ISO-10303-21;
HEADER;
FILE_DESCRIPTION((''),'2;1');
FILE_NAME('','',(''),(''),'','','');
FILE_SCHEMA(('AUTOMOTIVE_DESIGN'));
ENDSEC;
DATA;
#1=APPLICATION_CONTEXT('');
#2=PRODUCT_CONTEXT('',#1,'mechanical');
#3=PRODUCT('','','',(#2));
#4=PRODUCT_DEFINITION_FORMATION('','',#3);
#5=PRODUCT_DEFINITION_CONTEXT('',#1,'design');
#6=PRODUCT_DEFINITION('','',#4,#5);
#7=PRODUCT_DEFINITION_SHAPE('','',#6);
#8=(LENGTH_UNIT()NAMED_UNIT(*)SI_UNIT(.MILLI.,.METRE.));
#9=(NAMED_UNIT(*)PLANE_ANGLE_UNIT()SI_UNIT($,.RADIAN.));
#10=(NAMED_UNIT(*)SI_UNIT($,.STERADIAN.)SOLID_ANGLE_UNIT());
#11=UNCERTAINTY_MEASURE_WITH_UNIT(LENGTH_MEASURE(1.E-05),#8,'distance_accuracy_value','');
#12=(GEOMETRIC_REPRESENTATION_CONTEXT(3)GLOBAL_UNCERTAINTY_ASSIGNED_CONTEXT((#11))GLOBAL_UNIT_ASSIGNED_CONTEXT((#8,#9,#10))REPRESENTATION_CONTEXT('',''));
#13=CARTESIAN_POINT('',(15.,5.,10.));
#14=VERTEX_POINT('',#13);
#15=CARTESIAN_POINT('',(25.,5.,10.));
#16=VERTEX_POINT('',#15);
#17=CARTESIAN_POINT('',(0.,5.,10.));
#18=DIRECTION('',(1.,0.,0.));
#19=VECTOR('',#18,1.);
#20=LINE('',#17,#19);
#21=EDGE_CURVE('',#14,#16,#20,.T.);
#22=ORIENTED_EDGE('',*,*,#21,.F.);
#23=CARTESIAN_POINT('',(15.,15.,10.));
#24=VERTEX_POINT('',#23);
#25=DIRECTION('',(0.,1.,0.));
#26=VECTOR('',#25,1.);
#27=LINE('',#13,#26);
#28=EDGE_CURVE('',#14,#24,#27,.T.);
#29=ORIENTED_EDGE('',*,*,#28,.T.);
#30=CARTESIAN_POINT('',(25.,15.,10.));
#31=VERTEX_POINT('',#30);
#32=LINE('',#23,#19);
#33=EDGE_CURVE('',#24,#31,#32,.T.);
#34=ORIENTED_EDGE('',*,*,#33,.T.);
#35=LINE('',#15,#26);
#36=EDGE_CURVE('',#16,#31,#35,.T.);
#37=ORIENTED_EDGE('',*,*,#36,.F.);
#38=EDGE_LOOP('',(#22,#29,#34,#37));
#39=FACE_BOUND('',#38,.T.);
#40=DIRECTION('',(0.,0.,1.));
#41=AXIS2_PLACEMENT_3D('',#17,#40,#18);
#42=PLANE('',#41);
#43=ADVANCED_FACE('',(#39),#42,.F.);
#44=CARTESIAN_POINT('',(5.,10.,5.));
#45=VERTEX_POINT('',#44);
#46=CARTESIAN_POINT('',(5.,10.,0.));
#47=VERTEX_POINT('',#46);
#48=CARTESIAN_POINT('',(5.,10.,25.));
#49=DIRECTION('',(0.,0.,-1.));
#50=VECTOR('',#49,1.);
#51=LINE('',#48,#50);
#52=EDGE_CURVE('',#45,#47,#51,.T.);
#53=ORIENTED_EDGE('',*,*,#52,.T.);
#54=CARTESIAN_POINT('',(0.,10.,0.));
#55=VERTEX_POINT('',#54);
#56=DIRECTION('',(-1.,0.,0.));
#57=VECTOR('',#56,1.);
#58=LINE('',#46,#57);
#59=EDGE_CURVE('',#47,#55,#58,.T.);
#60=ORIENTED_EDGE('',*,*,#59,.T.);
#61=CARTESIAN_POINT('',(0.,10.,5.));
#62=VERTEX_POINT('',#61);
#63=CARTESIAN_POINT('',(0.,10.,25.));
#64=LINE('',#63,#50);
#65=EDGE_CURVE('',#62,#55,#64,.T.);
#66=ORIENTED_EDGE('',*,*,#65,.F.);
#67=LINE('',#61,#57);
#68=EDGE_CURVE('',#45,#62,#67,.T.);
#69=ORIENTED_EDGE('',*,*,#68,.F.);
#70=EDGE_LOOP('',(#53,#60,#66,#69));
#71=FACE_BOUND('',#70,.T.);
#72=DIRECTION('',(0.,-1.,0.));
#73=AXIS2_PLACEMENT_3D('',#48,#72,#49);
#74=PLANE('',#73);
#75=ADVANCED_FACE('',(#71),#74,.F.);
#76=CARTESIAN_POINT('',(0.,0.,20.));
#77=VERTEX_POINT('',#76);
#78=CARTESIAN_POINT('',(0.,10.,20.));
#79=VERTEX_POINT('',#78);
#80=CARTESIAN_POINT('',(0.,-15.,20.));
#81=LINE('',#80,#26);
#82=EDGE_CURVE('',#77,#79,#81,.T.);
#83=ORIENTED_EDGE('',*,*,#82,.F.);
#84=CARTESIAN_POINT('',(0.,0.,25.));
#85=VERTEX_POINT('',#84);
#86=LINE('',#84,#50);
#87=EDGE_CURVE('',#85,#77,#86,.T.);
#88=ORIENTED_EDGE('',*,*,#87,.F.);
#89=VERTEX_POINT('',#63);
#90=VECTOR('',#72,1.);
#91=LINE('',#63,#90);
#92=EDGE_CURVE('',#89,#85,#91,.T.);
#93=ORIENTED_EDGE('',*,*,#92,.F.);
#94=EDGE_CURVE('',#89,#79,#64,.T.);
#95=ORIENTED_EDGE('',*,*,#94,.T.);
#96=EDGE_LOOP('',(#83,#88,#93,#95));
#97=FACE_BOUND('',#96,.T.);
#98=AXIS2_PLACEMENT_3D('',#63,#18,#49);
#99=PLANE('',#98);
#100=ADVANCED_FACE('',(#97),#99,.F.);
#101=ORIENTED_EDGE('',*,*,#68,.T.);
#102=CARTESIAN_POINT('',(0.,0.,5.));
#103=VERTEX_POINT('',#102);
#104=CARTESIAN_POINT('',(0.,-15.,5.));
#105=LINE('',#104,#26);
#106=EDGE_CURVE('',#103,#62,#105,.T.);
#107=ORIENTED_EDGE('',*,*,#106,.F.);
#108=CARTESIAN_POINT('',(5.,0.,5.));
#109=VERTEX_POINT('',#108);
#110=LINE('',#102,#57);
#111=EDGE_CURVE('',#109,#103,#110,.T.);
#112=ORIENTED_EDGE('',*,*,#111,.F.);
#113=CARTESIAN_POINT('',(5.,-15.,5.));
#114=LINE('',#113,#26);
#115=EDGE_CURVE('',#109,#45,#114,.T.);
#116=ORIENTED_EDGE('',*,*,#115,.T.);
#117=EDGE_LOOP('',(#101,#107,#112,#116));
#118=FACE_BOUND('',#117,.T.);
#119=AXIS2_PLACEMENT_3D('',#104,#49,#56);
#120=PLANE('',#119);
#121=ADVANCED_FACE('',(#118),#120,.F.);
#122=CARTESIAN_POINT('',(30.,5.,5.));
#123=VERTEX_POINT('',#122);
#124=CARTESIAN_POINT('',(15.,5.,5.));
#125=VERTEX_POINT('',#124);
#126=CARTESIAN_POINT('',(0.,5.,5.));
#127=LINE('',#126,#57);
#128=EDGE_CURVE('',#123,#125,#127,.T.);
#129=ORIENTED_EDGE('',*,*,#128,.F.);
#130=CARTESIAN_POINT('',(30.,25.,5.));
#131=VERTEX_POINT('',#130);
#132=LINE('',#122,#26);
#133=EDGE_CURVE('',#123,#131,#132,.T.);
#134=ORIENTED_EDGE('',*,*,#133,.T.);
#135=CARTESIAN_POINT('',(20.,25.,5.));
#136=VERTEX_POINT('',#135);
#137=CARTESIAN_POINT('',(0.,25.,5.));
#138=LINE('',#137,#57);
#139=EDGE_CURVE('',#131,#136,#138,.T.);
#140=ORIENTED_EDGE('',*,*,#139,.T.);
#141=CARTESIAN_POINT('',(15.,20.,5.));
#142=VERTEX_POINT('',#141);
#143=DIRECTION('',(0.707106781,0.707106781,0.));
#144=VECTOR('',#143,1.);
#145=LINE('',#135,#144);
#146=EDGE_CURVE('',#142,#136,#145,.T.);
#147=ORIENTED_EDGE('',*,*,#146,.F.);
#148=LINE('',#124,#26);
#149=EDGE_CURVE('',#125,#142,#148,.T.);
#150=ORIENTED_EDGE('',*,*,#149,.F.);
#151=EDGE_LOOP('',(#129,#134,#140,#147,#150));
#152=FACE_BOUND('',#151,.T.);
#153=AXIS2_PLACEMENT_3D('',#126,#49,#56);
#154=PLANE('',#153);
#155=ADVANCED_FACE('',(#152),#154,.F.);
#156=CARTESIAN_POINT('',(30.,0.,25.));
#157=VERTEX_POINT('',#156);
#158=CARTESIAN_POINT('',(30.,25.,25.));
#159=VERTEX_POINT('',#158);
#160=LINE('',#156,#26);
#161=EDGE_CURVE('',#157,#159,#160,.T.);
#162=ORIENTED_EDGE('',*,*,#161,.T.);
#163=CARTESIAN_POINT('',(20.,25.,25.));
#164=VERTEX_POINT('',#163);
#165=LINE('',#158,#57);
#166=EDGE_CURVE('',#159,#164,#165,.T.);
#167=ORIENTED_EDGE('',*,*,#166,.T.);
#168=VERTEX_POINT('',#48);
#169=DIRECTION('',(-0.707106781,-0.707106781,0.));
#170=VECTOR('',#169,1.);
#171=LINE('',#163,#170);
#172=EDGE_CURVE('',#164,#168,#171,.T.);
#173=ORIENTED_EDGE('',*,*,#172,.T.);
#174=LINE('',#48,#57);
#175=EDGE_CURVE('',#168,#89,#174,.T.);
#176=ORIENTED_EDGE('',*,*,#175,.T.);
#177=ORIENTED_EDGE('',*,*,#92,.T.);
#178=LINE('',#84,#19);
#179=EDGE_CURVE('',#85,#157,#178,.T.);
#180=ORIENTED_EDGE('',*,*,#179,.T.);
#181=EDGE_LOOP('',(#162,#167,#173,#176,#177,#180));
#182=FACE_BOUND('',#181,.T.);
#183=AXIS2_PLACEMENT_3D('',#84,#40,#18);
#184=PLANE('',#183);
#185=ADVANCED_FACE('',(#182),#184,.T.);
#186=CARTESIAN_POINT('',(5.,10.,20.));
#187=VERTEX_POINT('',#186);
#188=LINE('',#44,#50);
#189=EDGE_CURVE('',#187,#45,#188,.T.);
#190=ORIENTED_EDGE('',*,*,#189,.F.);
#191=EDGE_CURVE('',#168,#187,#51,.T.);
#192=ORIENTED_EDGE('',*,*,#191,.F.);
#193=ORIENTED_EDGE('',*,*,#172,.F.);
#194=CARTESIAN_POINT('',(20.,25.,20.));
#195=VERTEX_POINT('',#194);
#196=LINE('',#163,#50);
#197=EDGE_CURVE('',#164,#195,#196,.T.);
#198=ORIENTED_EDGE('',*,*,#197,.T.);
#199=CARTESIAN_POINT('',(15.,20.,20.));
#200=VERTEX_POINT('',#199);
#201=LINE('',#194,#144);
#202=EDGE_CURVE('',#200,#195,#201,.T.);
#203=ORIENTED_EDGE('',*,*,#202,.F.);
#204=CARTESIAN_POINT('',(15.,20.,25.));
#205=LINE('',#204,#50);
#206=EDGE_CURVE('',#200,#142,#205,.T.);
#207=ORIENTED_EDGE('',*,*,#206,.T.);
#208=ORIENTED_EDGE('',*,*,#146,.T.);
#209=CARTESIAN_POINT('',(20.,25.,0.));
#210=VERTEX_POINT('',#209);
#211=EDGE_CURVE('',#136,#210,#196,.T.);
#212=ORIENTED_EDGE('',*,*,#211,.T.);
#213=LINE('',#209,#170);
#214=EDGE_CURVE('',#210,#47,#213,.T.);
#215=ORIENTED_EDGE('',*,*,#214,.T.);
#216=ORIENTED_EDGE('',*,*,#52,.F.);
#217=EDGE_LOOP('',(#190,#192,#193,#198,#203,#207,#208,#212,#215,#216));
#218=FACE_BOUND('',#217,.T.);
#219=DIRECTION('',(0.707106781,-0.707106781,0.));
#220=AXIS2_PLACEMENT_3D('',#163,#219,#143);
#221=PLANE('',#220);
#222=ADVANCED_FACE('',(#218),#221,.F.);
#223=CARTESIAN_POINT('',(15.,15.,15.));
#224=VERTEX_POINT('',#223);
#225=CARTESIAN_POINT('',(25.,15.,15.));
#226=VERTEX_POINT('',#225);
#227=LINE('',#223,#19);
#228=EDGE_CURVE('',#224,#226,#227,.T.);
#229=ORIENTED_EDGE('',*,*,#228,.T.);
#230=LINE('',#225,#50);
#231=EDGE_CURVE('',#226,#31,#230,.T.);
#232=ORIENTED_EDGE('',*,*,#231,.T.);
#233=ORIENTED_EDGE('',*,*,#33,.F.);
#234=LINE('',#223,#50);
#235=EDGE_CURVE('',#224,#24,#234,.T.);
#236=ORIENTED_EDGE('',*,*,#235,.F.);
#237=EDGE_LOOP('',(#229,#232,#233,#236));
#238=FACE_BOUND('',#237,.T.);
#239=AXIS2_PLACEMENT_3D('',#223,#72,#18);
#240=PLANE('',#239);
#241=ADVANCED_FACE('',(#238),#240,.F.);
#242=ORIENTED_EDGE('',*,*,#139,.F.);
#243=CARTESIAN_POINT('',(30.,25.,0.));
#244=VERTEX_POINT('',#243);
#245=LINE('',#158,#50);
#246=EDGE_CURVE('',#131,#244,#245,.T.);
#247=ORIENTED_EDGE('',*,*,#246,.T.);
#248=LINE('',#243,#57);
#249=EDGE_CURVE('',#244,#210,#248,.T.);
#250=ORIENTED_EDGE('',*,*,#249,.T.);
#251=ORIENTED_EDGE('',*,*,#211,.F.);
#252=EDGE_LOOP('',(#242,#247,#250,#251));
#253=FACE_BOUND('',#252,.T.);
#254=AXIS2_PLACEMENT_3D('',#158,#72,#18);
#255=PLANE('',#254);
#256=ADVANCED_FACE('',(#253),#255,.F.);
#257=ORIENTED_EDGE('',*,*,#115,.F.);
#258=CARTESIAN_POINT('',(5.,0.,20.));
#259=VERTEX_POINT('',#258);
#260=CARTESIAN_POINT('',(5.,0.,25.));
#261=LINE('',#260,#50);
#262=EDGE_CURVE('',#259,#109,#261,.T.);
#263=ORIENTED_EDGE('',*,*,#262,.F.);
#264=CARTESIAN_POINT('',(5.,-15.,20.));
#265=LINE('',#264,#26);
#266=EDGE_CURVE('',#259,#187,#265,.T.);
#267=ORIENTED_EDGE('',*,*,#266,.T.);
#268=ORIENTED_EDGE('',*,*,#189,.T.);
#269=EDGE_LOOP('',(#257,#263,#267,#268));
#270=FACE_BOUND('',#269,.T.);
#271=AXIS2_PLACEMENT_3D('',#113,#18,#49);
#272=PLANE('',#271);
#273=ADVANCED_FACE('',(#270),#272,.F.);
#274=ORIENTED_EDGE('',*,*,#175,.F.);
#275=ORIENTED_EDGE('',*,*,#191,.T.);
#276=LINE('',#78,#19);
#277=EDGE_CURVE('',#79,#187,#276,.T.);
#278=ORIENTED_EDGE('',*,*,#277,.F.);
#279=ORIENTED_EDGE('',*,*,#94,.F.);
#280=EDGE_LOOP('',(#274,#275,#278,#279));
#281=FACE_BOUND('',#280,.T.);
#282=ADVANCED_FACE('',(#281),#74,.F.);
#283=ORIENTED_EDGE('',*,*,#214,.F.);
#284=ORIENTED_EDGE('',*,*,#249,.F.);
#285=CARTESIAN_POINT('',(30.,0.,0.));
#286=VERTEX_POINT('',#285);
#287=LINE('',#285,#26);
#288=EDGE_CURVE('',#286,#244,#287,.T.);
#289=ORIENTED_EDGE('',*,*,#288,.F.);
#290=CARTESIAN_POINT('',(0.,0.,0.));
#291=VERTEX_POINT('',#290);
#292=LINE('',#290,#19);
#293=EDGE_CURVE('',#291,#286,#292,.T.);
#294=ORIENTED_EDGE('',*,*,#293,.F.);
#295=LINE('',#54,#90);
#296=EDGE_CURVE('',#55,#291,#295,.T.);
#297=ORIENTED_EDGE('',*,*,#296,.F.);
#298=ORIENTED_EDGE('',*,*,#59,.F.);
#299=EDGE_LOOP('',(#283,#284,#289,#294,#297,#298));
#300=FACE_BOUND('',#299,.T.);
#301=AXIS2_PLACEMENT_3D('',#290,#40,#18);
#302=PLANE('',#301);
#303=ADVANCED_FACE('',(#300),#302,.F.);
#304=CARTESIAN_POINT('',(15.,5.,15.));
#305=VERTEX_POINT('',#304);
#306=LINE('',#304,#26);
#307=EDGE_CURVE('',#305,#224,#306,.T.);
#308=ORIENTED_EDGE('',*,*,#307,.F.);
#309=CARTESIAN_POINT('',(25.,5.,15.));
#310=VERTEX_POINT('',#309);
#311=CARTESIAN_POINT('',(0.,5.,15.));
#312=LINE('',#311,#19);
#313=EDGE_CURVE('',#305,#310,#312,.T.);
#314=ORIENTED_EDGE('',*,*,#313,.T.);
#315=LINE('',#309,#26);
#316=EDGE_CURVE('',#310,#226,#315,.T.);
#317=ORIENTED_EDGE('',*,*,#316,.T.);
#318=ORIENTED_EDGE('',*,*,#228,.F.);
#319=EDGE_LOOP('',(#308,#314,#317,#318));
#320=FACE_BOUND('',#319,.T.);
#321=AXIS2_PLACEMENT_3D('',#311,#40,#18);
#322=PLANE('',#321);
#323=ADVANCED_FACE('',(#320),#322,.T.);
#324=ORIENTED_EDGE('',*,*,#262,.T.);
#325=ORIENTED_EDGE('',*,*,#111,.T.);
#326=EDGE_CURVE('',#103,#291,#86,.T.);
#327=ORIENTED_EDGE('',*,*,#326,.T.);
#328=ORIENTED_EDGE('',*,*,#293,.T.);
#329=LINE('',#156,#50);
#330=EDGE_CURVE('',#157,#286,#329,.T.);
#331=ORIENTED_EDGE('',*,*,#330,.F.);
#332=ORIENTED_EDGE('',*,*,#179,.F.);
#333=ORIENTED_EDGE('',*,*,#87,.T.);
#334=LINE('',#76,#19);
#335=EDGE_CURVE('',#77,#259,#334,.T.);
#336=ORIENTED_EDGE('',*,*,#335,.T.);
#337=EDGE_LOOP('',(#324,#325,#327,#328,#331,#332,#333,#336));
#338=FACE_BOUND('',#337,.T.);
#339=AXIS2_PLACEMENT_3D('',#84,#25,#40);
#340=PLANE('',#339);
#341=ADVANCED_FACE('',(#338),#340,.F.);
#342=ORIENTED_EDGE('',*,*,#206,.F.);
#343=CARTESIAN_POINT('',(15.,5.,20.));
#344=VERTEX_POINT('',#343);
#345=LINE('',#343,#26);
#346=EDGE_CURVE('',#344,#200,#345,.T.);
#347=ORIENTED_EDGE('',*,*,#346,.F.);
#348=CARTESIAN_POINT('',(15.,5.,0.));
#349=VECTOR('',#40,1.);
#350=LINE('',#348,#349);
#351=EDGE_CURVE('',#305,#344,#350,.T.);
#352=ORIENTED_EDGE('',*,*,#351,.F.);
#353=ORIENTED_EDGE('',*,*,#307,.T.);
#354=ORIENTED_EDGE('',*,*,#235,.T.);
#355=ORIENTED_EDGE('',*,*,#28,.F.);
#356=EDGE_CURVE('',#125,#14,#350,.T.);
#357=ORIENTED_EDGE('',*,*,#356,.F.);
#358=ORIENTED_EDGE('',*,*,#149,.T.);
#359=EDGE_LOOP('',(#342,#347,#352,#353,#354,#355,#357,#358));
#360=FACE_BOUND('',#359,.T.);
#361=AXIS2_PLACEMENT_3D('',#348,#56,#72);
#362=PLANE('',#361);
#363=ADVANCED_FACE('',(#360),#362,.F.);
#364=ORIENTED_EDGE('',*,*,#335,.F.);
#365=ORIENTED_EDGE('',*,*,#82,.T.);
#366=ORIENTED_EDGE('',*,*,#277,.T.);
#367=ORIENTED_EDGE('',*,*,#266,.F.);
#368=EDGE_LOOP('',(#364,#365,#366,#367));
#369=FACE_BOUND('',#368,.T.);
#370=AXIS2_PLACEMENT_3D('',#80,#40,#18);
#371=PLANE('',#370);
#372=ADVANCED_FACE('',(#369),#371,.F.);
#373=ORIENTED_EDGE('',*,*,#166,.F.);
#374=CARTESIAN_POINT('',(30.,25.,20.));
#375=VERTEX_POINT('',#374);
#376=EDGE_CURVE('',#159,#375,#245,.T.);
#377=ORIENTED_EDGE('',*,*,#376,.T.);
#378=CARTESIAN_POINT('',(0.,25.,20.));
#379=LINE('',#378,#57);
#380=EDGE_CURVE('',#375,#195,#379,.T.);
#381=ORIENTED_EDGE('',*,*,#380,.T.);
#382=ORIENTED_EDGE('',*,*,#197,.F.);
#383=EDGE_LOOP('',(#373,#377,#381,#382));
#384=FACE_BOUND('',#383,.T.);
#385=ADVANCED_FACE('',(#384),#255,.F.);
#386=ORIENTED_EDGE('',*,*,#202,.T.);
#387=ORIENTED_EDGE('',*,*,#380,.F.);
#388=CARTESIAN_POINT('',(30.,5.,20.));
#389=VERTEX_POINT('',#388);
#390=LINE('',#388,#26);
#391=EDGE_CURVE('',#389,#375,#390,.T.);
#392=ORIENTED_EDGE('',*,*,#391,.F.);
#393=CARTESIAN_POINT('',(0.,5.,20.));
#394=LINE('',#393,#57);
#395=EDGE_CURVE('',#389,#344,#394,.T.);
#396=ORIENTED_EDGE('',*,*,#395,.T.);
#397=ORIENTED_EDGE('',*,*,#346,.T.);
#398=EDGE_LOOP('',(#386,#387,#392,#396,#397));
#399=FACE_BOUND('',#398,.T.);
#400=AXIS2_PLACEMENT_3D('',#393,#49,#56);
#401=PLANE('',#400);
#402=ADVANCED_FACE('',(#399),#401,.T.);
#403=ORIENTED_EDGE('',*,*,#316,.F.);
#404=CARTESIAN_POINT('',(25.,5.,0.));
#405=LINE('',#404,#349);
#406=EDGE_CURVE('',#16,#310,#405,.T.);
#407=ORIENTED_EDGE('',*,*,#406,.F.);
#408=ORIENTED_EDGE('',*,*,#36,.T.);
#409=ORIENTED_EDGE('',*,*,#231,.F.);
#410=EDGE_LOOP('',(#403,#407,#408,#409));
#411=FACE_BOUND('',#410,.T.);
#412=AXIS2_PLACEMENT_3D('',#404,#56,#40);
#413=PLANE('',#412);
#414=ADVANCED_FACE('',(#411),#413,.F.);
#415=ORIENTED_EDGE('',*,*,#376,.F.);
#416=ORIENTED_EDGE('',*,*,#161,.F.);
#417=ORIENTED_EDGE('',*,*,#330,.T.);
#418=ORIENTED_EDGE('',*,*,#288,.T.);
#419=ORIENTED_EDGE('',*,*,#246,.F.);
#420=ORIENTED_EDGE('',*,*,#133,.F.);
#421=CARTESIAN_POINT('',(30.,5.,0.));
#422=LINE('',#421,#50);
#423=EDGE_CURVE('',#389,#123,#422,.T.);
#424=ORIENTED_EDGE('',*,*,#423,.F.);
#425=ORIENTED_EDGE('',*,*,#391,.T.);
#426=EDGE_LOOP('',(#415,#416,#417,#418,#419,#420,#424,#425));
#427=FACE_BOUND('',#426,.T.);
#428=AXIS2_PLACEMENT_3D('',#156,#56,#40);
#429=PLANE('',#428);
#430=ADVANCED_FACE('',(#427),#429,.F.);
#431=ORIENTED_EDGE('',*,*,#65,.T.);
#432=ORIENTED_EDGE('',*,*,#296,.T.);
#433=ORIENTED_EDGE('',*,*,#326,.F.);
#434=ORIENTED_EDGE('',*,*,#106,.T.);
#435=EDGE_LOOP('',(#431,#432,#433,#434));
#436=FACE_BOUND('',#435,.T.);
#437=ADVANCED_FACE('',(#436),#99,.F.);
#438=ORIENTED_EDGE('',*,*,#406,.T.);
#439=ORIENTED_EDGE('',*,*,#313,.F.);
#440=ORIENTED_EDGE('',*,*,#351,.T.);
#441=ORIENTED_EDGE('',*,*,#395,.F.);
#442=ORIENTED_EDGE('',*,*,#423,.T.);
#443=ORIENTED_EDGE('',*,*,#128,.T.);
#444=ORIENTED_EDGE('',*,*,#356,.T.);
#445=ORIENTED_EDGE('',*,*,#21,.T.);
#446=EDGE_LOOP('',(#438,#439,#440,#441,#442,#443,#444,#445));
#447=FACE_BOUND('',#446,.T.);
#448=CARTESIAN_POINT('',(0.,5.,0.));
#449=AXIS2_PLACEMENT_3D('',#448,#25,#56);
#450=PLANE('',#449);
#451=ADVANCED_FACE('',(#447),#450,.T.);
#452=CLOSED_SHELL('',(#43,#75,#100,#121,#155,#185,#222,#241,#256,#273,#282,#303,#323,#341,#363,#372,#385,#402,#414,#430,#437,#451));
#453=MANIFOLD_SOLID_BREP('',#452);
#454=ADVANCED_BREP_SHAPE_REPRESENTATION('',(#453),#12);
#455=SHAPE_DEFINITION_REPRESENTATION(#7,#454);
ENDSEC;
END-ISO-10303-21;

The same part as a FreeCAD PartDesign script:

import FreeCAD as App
import Part
import Sketcher
Q = App.Units.Quantity


def add_polygon(sketch, points):
    """Adds a closed chain of lines whose ends are joined by coincident constraints."""
    first, n = sketch.GeometryCount, len(points)
    for a, b in zip(points, points[1:] + points[:1]):
        sketch.addGeometry(Part.LineSegment(App.Vector(*a, 0), App.Vector(*b, 0)), False)
    for i in range(n):
        sketch.addConstraint(Sketcher.Constraint("Coincident", first + i, 2, first + (i + 1) % n, 1))

doc = App.newDocument("Part")
params = doc.addObject("Spreadsheet::Sheet", "Params")
for row, (alias, value) in enumerate([
    ("sketch1_width", "30 mm"),
    ("sketch1_width2", "10 mm"),
    ("sketch1_width3", "5 mm"),
    ("sketch1_height", "25 mm"),
    ("pad1_length", "25 mm"),
    ("sketch2_width", "5 mm"),
    ("sketch2_height", "15 mm"),
    ("pocket1_length", "25 mm"),
    ("sketch3_width", "15 mm"),
    ("sketch3_width2", "10 mm"),
    ("pocket2_length", "20 mm"),
    ("sketch4_width", "10 mm"),
    ("sketch4_height", "5 mm"),
    ("pocket3_length", "10 mm"),
], start=1):
    params.set(f"A{row}", alias)
    params.set(f"B{row}", "=" + value)
    params.setAlias(f"B{row}", alias)

body = doc.addObject("PartDesign::Body", "Body")

# Sketch on XY plane
sketch1 = body.newObject("Sketcher::SketchObject", "Sketch")
sketch1.AttachmentSupport = (doc.getObject("XY_Plane"), [""])
sketch1.MapMode = "FlatFace"
add_polygon(sketch1, [(0, 0), (30, 0), (30, 25), (20, 25), (5, 10), (0, 10)])  # lines 0-5
sketch1.addConstraint([
    Sketcher.Constraint("Horizontal", 0),
    Sketcher.Constraint("Vertical", 1),
    Sketcher.Constraint("Horizontal", 2),
    Sketcher.Constraint("Horizontal", 4),
    Sketcher.Constraint("Vertical", 5),
    Sketcher.Constraint("Coincident", 5, 2, -1, 1),
    Sketcher.Constraint("Equal", 2, 5),
    Sketcher.Constraint("DistanceX", 0, 1, 0, 2, Q("30 mm")),
    Sketcher.Constraint("DistanceX", 2, 2, 2, 1, Q("10 mm")),
    Sketcher.Constraint("DistanceX", 4, 2, 4, 1, Q("5 mm")),
    Sketcher.Constraint("DistanceY", 1, 1, 1, 2, Q("25 mm")),
])
sketch1.setExpression("Constraints[13]", "Params.sketch1_width")
sketch1.setExpression("Constraints[14]", "Params.sketch1_width2")
sketch1.setExpression("Constraints[15]", "Params.sketch1_width3")
sketch1.setExpression("Constraints[16]", "Params.sketch1_height")
pad1 = body.newObject("PartDesign::Pad", "Pad")
pad1.Profile = sketch1
pad1.setExpression("Length", "Params.pad1_length")

# Sketch on XZ plane
sketch2 = body.newObject("Sketcher::SketchObject", "Sketch001")
sketch2.AttachmentSupport = (doc.getObject("XZ_Plane"), [""])
sketch2.MapMode = "FlatFace"
sketch2.AttachmentOffset = App.Placement(App.Vector(0, 0, -10), App.Rotation())
add_polygon(sketch2, [(0, 5), (0, 20), (5, 20), (5, 5)])  # lines 0-3
sketch2.addConstraint([
    Sketcher.Constraint("Vertical", 0),
    Sketcher.Constraint("Horizontal", 1),
    Sketcher.Constraint("Vertical", 2),
    Sketcher.Constraint("Horizontal", 3),
    Sketcher.Constraint("PointOnObject", 0, 2, -2),
    Sketcher.Constraint("DistanceX", 1, 1, 1, 2, Q("5 mm")),
    Sketcher.Constraint("DistanceY", 0, 1, 0, 2, Q("15 mm")),
    Sketcher.Constraint("DistanceY", -1, 1, 0, 2, Q("20 mm")),
])
sketch2.setExpression("Constraints[9]", "Params.sketch2_width")
sketch2.setExpression("Constraints[10]", "Params.sketch2_height")
pocket1 = body.newObject("PartDesign::Pocket", "Pocket")
pocket1.Profile = sketch2
pocket1.setExpression("Length", "Params.pocket1_length")
pocket1.Reversed = True

# Sketch on XZ plane
sketch3 = body.newObject("Sketcher::SketchObject", "Sketch002")
sketch3.AttachmentSupport = (doc.getObject("XZ_Plane"), [""])
sketch3.MapMode = "FlatFace"
sketch3.AttachmentOffset = App.Placement(App.Vector(0, 0, -25), App.Rotation())
add_polygon(sketch3, [(30, 20), (30, 5), (15, 5), (15, 10), (25, 10), (25, 15), (15, 15), (15, 20)])  # lines 0-7
sketch3.addConstraint([
    Sketcher.Constraint("Vertical", 0),
    Sketcher.Constraint("Horizontal", 1),
    Sketcher.Constraint("Vertical", 2),
    Sketcher.Constraint("Horizontal", 3),
    Sketcher.Constraint("Vertical", 4),
    Sketcher.Constraint("Horizontal", 5),
    Sketcher.Constraint("Vertical", 6),
    Sketcher.Constraint("Horizontal", 7),
    Sketcher.Constraint("Vertical", 2, 2, 5, 2),
    Sketcher.Constraint("Equal", 7, 0),
    Sketcher.Constraint("Equal", 2, 4),
    Sketcher.Constraint("Equal", 4, 6),
    Sketcher.Constraint("DistanceX", 1, 2, 1, 1, Q("15 mm")),
    Sketcher.Constraint("DistanceX", 3, 1, 3, 2, Q("10 mm")),
    Sketcher.Constraint("DistanceX", -1, 1, 0, 2, Q("30 mm")),
    Sketcher.Constraint("DistanceY", -1, 1, 0, 2, Q("5 mm")),
])
sketch3.setExpression("Constraints[20]", "Params.sketch3_width")
sketch3.setExpression("Constraints[21]", "Params.sketch3_width2")
pocket2 = body.newObject("PartDesign::Pocket", "Pocket001")
pocket2.Profile = sketch3
pocket2.setExpression("Length", "Params.pocket2_length")
pocket2.Reversed = True

# Sketch on YZ plane
sketch4 = body.newObject("Sketcher::SketchObject", "Sketch003")
sketch4.AttachmentSupport = (doc.getObject("YZ_Plane"), [""])
sketch4.MapMode = "FlatFace"
sketch4.AttachmentOffset = App.Placement(App.Vector(0, 0, 25), App.Rotation())
add_polygon(sketch4, [(25, 15), (15, 15), (15, 10), (25, 10)])  # lines 0-3
sketch4.addConstraint([
    Sketcher.Constraint("Horizontal", 0),
    Sketcher.Constraint("Vertical", 1),
    Sketcher.Constraint("Horizontal", 2),
    Sketcher.Constraint("Vertical", 3),
    Sketcher.Constraint("DistanceX", 0, 2, 0, 1, Q("10 mm")),
    Sketcher.Constraint("DistanceY", 1, 2, 1, 1, Q("5 mm")),
    Sketcher.Constraint("DistanceX", -1, 1, 0, 2, Q("15 mm")),
    Sketcher.Constraint("DistanceY", -1, 1, 0, 2, Q("15 mm")),
])
sketch4.setExpression("Constraints[8]", "Params.sketch4_width")
sketch4.setExpression("Constraints[9]", "Params.sketch4_height")
pocket3 = body.newObject("PartDesign::Pocket", "Pocket002")
pocket3.Profile = sketch4
pocket3.setExpression("Length", "Params.pocket3_length")

doc.recompute()
